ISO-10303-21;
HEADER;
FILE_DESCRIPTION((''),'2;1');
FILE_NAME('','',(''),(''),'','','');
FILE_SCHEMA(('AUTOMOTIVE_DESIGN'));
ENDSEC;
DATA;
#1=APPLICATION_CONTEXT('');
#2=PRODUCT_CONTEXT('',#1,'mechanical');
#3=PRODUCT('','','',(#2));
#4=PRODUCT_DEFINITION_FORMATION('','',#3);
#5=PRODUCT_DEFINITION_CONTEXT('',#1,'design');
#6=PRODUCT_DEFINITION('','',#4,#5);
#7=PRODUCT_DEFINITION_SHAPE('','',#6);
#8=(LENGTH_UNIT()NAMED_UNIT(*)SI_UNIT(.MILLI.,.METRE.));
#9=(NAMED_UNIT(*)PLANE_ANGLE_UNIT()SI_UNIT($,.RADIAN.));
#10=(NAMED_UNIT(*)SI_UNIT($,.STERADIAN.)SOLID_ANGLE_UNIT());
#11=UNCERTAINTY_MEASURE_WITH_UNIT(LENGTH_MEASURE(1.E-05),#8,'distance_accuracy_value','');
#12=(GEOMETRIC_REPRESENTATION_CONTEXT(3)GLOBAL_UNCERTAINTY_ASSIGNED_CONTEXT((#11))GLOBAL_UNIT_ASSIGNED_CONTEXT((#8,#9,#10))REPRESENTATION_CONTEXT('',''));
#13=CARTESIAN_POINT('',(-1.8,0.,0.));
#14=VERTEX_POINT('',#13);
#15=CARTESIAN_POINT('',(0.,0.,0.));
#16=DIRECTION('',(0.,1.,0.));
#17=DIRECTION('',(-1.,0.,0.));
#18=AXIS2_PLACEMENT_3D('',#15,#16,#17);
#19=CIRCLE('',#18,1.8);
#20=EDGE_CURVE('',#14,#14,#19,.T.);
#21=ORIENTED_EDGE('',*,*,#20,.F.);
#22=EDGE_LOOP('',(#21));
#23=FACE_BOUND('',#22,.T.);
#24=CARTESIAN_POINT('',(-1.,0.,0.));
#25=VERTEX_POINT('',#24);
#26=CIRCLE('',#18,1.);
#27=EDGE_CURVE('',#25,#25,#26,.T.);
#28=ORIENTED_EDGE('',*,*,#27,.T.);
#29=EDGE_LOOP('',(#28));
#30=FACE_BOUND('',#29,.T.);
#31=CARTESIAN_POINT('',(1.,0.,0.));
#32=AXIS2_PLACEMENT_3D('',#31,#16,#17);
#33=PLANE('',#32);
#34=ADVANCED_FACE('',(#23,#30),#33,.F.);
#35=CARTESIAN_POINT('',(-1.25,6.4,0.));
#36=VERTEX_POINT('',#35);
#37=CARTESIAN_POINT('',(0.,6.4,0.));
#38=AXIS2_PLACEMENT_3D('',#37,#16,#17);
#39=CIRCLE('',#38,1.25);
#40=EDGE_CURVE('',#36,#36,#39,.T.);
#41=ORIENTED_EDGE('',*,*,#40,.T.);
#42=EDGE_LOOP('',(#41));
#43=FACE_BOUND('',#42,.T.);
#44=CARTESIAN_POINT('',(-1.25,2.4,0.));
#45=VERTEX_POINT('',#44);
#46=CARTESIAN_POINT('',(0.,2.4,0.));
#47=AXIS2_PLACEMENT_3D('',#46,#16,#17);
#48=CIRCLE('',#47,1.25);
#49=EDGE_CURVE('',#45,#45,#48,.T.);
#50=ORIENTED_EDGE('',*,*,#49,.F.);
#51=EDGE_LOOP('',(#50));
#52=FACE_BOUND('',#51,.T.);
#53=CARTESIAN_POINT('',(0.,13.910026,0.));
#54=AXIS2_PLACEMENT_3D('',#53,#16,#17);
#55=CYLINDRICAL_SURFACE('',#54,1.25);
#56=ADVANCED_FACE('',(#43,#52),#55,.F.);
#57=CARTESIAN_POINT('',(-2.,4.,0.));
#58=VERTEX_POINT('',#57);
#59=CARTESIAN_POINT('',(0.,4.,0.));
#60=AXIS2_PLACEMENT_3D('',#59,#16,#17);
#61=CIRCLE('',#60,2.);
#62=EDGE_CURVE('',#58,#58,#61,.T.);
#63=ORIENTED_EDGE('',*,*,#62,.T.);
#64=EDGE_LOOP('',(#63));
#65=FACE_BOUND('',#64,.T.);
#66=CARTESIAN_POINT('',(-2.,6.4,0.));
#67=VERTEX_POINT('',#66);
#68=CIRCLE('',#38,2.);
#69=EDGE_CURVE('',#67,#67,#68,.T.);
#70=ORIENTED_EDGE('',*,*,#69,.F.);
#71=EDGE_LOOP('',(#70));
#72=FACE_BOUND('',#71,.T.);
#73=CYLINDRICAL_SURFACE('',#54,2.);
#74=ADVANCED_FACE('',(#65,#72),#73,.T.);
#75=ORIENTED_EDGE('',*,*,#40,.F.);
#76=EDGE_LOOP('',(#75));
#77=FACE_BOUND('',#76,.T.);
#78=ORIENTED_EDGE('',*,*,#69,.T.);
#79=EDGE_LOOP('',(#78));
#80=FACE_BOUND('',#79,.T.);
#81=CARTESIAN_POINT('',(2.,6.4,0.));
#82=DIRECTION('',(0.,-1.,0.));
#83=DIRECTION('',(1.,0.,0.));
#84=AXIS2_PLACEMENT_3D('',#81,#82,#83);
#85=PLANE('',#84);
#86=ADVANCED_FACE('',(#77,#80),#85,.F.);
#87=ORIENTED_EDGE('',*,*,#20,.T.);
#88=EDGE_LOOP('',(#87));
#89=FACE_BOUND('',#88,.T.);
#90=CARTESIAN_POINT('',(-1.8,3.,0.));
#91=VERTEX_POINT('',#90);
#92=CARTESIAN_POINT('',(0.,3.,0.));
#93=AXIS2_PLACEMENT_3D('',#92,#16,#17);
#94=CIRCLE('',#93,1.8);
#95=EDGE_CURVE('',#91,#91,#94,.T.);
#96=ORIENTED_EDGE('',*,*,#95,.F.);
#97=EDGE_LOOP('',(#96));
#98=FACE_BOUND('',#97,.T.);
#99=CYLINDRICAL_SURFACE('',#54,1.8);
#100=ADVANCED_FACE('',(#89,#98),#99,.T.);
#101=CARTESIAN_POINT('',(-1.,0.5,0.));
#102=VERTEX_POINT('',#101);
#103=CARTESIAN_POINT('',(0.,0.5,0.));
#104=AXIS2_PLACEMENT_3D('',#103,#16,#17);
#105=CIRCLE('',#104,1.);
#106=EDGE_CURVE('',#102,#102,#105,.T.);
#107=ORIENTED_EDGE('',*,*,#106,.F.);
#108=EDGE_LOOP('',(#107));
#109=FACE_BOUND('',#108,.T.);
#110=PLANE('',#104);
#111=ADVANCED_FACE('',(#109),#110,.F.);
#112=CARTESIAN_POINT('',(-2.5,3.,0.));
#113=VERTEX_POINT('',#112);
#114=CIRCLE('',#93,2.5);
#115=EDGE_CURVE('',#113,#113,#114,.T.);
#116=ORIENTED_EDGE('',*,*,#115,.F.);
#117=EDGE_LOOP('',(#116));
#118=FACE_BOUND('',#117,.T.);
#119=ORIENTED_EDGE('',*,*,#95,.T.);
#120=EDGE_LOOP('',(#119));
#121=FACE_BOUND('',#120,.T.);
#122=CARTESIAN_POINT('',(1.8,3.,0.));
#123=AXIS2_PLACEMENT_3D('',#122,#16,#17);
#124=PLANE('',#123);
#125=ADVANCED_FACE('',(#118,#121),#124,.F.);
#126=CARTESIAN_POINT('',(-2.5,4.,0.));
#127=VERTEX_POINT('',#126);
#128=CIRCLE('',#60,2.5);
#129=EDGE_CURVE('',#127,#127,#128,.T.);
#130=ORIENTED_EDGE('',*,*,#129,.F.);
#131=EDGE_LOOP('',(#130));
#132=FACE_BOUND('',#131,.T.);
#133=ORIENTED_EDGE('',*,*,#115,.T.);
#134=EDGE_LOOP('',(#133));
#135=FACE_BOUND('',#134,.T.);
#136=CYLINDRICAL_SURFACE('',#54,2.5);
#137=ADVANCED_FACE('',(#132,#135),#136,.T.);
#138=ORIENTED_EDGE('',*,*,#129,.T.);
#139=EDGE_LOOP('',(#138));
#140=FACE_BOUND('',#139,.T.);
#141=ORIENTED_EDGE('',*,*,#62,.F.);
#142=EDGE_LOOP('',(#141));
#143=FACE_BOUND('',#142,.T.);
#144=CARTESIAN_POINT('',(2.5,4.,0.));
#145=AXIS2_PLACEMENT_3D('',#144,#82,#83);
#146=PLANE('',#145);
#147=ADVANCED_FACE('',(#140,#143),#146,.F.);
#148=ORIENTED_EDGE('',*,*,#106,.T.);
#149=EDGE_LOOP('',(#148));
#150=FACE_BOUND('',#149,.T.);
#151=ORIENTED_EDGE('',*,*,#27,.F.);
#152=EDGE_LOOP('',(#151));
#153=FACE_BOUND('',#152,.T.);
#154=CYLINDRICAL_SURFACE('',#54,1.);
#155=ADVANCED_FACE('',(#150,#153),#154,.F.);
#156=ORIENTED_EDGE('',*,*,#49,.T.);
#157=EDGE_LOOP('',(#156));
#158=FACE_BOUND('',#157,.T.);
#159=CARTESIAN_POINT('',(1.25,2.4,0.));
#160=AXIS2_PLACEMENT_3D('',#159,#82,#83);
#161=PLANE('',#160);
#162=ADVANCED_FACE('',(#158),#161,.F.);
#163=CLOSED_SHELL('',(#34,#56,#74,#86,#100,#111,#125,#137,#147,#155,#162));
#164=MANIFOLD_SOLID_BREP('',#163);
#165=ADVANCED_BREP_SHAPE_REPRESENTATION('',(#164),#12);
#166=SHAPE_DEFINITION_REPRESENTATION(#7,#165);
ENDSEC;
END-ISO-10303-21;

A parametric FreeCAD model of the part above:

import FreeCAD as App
import Part
import Sketcher
Q = App.Units.Quantity

doc = App.newDocument("Part")
body = doc.addObject("PartDesign::Body", "Body")

# Sketch on XY plane
sketch1 = body.newObject("Sketcher::SketchObject", "Sketch")
sketch1.AttachmentSupport = (doc.getObject("XY_Plane"), [""])
sketch1.MapMode = "FlatFace"
sketch1.addGeometry(Part.LineSegment(App.Vector(1, 0, 0), App.Vector(1.8, 0, 0)), False)
sketch1.addGeometry(Part.LineSegment(App.Vector(1.8, 0, 0), App.Vector(1.8, 3, 0)), False)
sketch1.addGeometry(Part.LineSegment(App.Vector(1.8, 3, 0), App.Vector(2.5, 3, 0)), False)
sketch1.addGeometry(Part.LineSegment(App.Vector(2.5, 3, 0), App.Vector(2.5, 4, 0)), False)
sketch1.addGeometry(Part.LineSegment(App.Vector(2.5, 4, 0), App.Vector(2, 4, 0)), False)
sketch1.addGeometry(Part.LineSegment(App.Vector(2, 4, 0), App.Vector(2, 6.4, 0)), False)
sketch1.addGeometry(Part.LineSegment(App.Vector(2, 6.4, 0), App.Vector(1.2, 6.4, 0)), False)
sketch1.addGeometry(Part.LineSegment(App.Vector(1.2, 6.4, 0), App.Vector(1.2, 2.4, 0)), False)
sketch1.addGeometry(Part.LineSegment(App.Vector(1.2, 2.4, 0), App.Vector(0, 2.4, 0)), False)
sketch1.addGeometry(Part.LineSegment(App.Vector(0, 2.4, 0), App.Vector(0, 0.5, 0)), False)
sketch1.addGeometry(Part.LineSegment(App.Vector(0, 0.5, 0), App.Vector(1, 0.5, 0)), False)
sketch1.addGeometry(Part.LineSegment(App.Vector(1, 0.5, 0), App.Vector(1, 0, 0)), False)
sketch1.addConstraint(Sketcher.Constraint("Coincident", 0, 2, 1, 1))
sketch1.addConstraint(Sketcher.Constraint("Coincident", 1, 2, 2, 1))
sketch1.addConstraint(Sketcher.Constraint("Coincident", 2, 2, 3, 1))
sketch1.addConstraint(Sketcher.Constraint("Coincident", 3, 2, 4, 1))
sketch1.addConstraint(Sketcher.Constraint("Coincident", 4, 2, 5, 1))
sketch1.addConstraint(Sketcher.Constraint("Coincident", 5, 2, 6, 1))
sketch1.addConstraint(Sketcher.Constraint("Coincident", 6, 2, 7, 1))
sketch1.addConstraint(Sketcher.Constraint("Coincident", 7, 2, 8, 1))
sketch1.addConstraint(Sketcher.Constraint("Coincident", 8, 2, 9, 1))
sketch1.addConstraint(Sketcher.Constraint("Coincident", 9, 2, 10, 1))
sketch1.addConstraint(Sketcher.Constraint("Coincident", 10, 2, 11, 1))
sketch1.addConstraint(Sketcher.Constraint("Coincident", 11, 2, 0, 1))
sketch1.addConstraint(Sketcher.Constraint("Horizontal", 0))
sketch1.addConstraint(Sketcher.Constraint("Vertical", 1))
sketch1.addConstraint(Sketcher.Constraint("Horizontal", 2))
sketch1.addConstraint(Sketcher.Constraint("Vertical", 3))
sketch1.addConstraint(Sketcher.Constraint("Horizontal", 4))
sketch1.addConstraint(Sketcher.Constraint("Vertical", 5))
sketch1.addConstraint(Sketcher.Constraint("Horizontal", 6))
sketch1.addConstraint(Sketcher.Constraint("Vertical", 7))
sketch1.addConstraint(Sketcher.Constraint("Horizontal", 8))
sketch1.addConstraint(Sketcher.Constraint("Vertical", 9))
sketch1.addConstraint(Sketcher.Constraint("Horizontal", 10))
sketch1.addConstraint(Sketcher.Constraint("Vertical", 11))
sketch1.addConstraint(Sketcher.Constraint("PointOnObject", 0, 2, -1))
sketch1.addConstraint(Sketcher.Constraint("PointOnObject", 8, 2, -2))
sketch1.addConstraint(Sketcher.Constraint("Equal", 10, 3))
sketch1.addConstraint(Sketcher.Constraint("Equal", 4, 11))
sketch1.addConstraint(Sketcher.Constraint("DistanceX", 10, 1, 10, 2, Q("1 mm")))
sketch1.addConstraint(Sketcher.Constraint("DistanceY", 1, 1, 1, 2, Q("3 mm")))
sketch1.addConstraint(Sketcher.Constraint("DistanceY", 7, 2, 7, 1, Q("4 mm")))
sketch1.addConstraint(Sketcher.Constraint("DistanceX", 0, 1, 0, 2, Q("0.8 mm")))
sketch1.addConstraint(Sketcher.Constraint("DistanceX", 2, 1, 2, 2, Q("0.7 mm")))
sketch1.addConstraint(Sketcher.Constraint("DistanceX", 4, 2, 4, 1, Q("0.5 mm")))
sketch1.addConstraint(Sketcher.Constraint("DistanceY", 5, 1, 5, 2, Q("2.4 mm")))
sketch1.addConstraint(Sketcher.Constraint("DistanceX", 6, 2, 6, 1, Q("0.75 mm")))
revolution = body.newObject("PartDesign::Revolution", "Revolution")
revolution.Profile = sketch1
revolution.ReferenceAxis = (sketch1, ["V_Axis"])
revolution.Angle = 360

doc.recompute()
